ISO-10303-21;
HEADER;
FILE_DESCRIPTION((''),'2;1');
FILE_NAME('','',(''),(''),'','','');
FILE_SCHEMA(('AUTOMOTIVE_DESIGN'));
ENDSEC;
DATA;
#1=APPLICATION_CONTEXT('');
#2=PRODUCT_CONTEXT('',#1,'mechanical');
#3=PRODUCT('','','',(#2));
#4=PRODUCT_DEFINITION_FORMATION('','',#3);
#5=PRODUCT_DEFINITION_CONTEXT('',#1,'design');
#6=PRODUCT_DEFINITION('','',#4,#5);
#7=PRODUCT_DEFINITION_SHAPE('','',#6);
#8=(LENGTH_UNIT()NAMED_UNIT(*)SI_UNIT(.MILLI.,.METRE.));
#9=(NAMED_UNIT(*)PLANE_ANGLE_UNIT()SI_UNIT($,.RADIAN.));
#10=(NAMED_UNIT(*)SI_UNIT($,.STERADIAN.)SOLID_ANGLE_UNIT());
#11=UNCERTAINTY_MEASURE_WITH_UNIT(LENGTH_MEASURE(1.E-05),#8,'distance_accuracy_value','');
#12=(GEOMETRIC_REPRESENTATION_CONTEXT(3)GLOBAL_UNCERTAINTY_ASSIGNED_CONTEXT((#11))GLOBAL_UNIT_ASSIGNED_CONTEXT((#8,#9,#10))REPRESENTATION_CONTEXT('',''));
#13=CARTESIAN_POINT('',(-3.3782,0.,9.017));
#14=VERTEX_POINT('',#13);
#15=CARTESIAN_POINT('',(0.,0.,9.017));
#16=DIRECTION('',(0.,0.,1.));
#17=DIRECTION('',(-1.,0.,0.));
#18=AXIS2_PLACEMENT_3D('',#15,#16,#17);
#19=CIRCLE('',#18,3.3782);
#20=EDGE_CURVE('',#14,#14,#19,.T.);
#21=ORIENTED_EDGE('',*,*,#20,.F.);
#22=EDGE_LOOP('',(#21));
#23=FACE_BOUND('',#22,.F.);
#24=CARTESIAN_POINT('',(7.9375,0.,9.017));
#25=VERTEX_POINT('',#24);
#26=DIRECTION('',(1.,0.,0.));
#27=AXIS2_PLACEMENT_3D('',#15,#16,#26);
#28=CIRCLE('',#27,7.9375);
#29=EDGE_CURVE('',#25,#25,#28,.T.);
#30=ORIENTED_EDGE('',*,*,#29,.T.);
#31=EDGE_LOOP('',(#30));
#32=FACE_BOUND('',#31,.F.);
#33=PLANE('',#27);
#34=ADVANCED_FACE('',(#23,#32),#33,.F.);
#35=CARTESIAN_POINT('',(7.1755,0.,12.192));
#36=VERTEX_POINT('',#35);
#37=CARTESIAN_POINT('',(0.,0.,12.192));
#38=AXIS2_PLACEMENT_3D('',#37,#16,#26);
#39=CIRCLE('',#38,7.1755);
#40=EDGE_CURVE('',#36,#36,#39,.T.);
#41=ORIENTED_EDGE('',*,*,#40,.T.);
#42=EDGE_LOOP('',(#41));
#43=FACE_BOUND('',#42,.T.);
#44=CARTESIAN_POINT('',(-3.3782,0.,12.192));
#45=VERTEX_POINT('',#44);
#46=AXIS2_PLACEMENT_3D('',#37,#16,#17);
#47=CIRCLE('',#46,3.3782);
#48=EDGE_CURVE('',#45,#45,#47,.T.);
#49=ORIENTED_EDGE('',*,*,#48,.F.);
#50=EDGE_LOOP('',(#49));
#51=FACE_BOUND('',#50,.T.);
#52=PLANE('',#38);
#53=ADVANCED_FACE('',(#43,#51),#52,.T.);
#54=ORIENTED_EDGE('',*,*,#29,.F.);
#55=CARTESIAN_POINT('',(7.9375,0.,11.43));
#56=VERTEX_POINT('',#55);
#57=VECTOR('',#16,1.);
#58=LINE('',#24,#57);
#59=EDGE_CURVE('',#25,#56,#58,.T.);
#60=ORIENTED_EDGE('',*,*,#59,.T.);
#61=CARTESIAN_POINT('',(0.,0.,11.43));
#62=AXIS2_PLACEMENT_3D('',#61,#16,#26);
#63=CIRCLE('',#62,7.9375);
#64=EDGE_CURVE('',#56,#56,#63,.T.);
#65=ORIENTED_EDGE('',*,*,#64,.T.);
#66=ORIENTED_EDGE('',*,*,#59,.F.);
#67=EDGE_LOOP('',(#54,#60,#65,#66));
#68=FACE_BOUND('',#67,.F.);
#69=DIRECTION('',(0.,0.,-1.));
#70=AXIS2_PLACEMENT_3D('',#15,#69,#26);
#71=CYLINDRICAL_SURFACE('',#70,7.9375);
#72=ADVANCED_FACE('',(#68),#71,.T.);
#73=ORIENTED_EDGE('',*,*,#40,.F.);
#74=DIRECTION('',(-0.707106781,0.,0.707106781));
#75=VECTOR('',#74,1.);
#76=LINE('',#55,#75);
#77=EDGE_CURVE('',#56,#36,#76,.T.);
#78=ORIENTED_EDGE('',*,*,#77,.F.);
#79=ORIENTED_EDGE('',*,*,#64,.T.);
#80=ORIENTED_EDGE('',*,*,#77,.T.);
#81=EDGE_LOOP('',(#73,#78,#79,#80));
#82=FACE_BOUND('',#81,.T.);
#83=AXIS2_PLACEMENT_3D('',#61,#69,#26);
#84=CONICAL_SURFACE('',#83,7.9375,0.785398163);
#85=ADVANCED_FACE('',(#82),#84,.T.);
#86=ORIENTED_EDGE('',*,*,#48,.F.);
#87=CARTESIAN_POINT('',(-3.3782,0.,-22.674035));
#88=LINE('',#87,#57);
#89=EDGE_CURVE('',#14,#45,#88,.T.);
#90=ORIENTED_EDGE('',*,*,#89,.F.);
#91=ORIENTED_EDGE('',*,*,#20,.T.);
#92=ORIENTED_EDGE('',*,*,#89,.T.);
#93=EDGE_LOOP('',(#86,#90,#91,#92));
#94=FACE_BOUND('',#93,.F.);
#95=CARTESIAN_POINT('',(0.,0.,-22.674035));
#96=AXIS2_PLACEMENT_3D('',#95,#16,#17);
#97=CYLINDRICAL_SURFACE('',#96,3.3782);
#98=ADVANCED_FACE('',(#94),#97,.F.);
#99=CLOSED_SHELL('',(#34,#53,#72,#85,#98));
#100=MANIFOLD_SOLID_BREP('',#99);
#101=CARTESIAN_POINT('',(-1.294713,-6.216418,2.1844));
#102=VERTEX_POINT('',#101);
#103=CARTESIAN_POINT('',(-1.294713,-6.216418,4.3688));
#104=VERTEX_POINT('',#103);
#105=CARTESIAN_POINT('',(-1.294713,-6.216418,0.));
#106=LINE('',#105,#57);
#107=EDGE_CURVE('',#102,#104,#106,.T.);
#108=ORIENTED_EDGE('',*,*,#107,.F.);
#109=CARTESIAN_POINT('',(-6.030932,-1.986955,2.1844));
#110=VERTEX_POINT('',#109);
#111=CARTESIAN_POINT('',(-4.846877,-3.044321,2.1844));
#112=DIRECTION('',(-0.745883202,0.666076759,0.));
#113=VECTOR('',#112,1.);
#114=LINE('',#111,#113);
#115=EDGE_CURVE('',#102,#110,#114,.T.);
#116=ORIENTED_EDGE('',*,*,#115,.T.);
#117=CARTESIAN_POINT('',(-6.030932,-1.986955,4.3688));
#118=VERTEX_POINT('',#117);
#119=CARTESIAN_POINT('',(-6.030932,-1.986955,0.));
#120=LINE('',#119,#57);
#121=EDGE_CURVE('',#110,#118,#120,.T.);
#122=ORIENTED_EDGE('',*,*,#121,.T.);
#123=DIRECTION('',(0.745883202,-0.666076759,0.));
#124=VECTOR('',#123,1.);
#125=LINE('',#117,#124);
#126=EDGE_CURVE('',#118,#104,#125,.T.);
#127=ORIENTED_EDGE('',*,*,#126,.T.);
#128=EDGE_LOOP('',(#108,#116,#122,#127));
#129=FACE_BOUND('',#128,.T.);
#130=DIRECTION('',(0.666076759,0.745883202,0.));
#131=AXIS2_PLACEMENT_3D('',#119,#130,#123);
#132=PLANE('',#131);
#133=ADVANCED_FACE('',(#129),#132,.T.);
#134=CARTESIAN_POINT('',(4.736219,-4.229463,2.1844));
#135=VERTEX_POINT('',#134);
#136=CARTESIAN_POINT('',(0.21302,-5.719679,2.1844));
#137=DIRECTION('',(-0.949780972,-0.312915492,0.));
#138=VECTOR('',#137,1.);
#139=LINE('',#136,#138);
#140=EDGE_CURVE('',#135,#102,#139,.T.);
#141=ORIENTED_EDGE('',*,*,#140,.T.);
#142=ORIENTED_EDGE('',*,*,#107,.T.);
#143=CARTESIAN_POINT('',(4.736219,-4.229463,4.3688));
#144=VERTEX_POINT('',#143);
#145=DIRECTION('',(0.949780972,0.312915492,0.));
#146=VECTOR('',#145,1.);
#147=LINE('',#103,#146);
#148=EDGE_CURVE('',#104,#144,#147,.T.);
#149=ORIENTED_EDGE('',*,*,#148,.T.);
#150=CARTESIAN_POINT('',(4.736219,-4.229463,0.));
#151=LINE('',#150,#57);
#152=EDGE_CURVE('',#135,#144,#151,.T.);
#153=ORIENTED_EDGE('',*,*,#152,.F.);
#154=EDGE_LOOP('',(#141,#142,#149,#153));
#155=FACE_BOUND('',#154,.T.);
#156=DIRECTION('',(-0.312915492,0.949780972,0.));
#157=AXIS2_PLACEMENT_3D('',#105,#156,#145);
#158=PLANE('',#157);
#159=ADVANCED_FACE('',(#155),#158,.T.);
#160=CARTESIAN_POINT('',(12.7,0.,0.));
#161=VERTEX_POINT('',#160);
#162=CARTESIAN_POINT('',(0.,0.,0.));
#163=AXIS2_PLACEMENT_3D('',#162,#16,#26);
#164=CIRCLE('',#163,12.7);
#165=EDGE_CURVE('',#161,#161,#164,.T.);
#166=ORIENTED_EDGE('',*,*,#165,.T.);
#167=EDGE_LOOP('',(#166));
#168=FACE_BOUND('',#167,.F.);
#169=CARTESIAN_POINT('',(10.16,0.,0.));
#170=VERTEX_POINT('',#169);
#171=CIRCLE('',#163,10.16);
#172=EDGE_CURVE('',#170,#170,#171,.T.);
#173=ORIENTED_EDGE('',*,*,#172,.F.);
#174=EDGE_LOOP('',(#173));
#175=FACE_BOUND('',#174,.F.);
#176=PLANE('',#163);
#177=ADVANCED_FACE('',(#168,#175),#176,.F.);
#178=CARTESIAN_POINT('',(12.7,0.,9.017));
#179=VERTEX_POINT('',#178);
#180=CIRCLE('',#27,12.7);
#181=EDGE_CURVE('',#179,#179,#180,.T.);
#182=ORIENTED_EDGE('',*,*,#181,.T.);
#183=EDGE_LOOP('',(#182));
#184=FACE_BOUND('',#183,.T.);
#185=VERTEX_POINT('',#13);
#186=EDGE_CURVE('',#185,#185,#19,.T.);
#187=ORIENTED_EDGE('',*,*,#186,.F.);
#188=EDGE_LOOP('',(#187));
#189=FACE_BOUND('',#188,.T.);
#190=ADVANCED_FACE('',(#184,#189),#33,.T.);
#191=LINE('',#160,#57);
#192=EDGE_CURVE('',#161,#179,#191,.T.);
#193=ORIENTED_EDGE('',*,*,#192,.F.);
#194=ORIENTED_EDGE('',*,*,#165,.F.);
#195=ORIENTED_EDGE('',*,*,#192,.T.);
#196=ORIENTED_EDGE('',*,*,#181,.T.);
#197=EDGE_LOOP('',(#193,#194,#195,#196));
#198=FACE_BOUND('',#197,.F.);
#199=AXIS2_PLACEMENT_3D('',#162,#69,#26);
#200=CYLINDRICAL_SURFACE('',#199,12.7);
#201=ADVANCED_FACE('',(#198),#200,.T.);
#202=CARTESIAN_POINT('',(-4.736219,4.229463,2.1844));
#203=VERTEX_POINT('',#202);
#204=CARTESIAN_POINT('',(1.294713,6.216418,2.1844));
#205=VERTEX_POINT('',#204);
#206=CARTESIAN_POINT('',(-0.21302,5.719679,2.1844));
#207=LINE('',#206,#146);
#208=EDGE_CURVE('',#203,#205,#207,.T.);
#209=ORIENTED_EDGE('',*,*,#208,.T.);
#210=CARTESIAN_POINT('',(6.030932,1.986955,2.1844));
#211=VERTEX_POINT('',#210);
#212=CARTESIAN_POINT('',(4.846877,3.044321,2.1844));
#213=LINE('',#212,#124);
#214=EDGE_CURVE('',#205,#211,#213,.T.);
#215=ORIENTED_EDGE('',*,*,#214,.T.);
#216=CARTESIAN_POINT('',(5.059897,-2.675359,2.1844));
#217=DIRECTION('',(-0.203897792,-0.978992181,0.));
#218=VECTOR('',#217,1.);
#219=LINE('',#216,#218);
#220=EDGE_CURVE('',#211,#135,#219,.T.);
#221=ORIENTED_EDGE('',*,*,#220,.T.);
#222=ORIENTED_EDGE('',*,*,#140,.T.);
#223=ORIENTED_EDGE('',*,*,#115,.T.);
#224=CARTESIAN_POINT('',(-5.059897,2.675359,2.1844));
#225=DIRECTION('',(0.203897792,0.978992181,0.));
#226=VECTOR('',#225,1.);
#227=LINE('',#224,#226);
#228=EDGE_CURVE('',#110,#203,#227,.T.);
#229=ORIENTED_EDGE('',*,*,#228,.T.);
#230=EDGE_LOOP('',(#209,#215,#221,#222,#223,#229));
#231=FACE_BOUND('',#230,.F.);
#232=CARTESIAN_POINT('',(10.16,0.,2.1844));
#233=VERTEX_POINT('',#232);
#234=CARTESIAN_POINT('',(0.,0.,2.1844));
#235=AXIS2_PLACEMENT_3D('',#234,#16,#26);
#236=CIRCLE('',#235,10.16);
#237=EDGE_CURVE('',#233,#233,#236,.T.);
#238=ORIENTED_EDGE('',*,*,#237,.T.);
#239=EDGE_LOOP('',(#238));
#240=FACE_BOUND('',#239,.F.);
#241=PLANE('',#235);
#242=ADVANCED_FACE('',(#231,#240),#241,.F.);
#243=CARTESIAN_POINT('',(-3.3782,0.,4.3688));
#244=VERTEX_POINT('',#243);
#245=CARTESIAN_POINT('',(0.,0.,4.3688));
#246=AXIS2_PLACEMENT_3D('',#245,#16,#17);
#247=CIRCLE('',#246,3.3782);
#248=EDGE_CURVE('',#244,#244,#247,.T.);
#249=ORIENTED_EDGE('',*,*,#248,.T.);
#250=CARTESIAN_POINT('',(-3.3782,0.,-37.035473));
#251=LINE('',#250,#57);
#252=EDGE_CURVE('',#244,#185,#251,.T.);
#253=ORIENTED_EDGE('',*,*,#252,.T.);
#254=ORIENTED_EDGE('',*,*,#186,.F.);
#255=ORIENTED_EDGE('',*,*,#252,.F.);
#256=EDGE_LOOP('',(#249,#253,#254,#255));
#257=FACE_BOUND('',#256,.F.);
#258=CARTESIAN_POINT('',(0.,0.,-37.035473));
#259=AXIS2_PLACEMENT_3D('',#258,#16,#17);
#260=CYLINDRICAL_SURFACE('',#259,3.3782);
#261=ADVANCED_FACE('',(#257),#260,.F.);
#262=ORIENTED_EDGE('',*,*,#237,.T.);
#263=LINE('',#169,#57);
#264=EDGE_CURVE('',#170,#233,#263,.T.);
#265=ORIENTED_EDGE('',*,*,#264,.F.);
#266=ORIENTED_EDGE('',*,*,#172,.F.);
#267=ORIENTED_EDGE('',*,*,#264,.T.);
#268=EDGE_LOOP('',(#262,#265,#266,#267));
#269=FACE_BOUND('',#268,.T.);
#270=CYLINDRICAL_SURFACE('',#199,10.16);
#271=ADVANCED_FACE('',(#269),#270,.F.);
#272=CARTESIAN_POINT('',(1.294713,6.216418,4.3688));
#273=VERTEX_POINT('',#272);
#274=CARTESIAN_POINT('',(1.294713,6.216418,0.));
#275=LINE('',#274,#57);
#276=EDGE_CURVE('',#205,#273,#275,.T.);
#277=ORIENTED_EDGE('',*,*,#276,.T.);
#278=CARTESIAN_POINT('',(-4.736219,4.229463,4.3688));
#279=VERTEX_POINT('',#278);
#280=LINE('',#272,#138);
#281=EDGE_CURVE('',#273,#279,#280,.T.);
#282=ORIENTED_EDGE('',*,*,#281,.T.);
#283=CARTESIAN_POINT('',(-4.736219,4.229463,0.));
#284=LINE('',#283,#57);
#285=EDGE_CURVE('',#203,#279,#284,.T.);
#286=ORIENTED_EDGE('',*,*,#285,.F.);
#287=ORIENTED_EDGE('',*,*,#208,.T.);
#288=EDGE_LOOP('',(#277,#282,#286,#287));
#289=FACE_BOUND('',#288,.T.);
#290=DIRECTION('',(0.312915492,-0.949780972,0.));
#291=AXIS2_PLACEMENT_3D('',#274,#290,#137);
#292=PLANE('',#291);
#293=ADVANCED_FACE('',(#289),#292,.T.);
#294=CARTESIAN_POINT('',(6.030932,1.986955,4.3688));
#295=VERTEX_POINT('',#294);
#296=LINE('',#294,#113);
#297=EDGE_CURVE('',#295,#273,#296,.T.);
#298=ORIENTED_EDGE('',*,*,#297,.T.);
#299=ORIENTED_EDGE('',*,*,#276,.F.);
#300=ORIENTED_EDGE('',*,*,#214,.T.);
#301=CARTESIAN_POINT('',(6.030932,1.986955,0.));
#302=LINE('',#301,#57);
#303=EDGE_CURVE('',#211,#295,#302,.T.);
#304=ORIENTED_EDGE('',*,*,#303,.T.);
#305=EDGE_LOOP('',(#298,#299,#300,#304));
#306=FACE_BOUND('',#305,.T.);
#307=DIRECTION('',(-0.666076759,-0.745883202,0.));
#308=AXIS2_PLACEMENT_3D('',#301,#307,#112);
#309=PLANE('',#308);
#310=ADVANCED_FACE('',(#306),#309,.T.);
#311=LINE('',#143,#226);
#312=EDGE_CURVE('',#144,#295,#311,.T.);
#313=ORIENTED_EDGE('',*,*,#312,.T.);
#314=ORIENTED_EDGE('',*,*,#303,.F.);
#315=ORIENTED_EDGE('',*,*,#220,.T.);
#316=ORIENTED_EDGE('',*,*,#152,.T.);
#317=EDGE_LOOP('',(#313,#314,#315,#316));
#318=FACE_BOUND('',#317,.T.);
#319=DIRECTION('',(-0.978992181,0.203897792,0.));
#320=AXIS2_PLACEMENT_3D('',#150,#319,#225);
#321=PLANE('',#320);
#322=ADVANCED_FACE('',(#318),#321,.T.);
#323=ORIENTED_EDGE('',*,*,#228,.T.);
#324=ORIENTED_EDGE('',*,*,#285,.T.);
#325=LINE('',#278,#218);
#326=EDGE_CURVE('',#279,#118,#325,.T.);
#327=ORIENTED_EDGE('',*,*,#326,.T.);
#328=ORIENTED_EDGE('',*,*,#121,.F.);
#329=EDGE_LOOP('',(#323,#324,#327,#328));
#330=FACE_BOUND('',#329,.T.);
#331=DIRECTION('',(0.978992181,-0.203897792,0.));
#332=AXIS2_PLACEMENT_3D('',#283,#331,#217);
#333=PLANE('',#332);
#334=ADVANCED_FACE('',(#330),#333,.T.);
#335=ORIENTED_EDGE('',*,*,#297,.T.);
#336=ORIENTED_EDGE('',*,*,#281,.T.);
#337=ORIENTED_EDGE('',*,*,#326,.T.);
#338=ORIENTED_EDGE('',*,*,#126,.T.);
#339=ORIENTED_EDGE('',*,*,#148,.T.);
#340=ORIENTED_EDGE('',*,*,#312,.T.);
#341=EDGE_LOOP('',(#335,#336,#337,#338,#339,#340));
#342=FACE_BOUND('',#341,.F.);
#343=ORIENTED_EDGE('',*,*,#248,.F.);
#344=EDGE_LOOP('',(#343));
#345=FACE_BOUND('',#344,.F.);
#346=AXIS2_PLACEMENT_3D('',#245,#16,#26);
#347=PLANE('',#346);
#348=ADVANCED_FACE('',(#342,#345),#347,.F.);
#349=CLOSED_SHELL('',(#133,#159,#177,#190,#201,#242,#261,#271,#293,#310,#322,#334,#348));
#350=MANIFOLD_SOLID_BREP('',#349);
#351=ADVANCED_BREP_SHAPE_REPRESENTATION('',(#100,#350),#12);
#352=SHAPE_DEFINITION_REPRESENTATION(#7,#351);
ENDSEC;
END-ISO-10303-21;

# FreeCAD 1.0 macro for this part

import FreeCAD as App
import Part
import Sketcher

V = App.Vector
Q = App.Units.Quantity


def edges_at(feature, points):
    """Names of the edges that pass closest to the given points."""
    edges = feature.Shape.Edges
    near = lambda p: min(range(len(edges)), key=lambda i: edges[i].distToShape(Part.Vertex(*p))[0])
    return sorted({f"Edge{near(p) + 1}" for p in points})

doc = App.newDocument("Part")
params = doc.addObject("Spreadsheet::Sheet", "Params")
for row, (alias, value) in enumerate([
    ("sketch1_diameter", "1 in"),
    ("pad1_length", "0.355 in"),
    ("sketch2_diameter", "0.8 in"),
    ("pocket1_length", "0.086 in"),
    ("pocket2_length", "0.172 in"),
    ("sketch4_diameter", "0.266 in"),
    ("hole_diameter", "0.266 in"),
    ("sketch5_diameter", "0.625 in"),
    ("pad2_length", "0.125 in"),
    ("chamfer_size", "0.03 in"),
    ("sketch6_diameter", "0.266 in"),
    ("hole2_diameter", "0.266 in"),
], start=1):
    params.set(f"A{row}", alias)
    params.set(f"B{row}", "=" + value)
    params.setAlias(f"B{row}", alias)

body = doc.addObject("PartDesign::Body", "Body")

sketch1 = body.newObject("Sketcher::SketchObject", "Sketch")
sketch1.AttachmentSupport = (doc.getObject("XY_Plane"), [""])
sketch1.MapMode = "FlatFace"
sketch1.addGeometry(Part.Circle(V(0, 0, 0), V(0, 0, 1), 12.7), False)
sketch1.addConstraint([
    Sketcher.Constraint("Coincident", 0, 3, -1, 1),
    Sketcher.Constraint("Diameter", 0, Q("1 in")),
])
sketch1.setExpression("Constraints[1]", "Params.sketch1_diameter")
pad1 = body.newObject("PartDesign::Pad", "Pad")
pad1.Profile = sketch1
pad1.setExpression("Length", "Params.pad1_length")

sketch2 = body.newObject("Sketcher::SketchObject", "Sketch001")
sketch2.AttachmentSupport = (doc.getObject("XY_Plane"), [""])
sketch2.MapMode = "FlatFace"
sketch2.addGeometry(Part.Circle(V(0, 0, 0), V(0, 0, 1), 10.16), False)
sketch2.addConstraint([
    Sketcher.Constraint("Coincident", 0, 3, -1, 1),
    Sketcher.Constraint("Diameter", 0, Q("0.8 in")),
])
sketch2.setExpression("Constraints[1]", "Params.sketch2_diameter")
pocket1 = body.newObject("PartDesign::Pocket", "Pocket")
pocket1.Profile = sketch2
pocket1.setExpression("Length", "Params.pocket1_length")
pocket1.Reversed = True

sketch3 = body.newObject("Sketcher::SketchObject", "Sketch002")
sketch3.AttachmentSupport = (doc.getObject("XY_Plane"), [""])
sketch3.MapMode = "FlatFace"
sketch3.addGeometry([
    Part.LineSegment(V(6.030932, 1.986955, 0), V(1.294713, 6.216418, 0)),
    Part.LineSegment(V(1.294713, 6.216418, 0), V(-4.736219, 4.229463, 0)),
    Part.LineSegment(V(-4.736219, 4.229463, 0), V(-6.030932, -1.986955, 0)),
    Part.LineSegment(V(-6.030932, -1.986955, 0), V(-1.294713, -6.216418, 0)),
    Part.LineSegment(V(-1.294713, -6.216418, 0), V(4.736219, -4.229463, 0)),
    Part.LineSegment(V(4.736219, -4.229463, 0), V(6.030932, 1.986955, 0)),
], False)
sketch3.addConstraint([
    Sketcher.Constraint("Coincident", 0, 2, 1, 1),
    Sketcher.Constraint("Coincident", 1, 2, 2, 1),
    Sketcher.Constraint("Coincident", 2, 2, 3, 1),
    Sketcher.Constraint("Coincident", 3, 2, 4, 1),
    Sketcher.Constraint("Coincident", 4, 2, 5, 1),
    Sketcher.Constraint("Coincident", 5, 2, 0, 1),
    Sketcher.Constraint("Symmetric", 0, 2, 3, 2, -1, 1),
    Sketcher.Constraint("Symmetric", 1, 2, 4, 2, -1, 1),
    Sketcher.Constraint("Symmetric", 2, 2, 5, 2, -1, 1),
    Sketcher.Constraint("Equal", 0, 1),
    Sketcher.Constraint("Equal", 1, 2),
    Sketcher.Constraint("DistanceX", 1, 2, -1, 1, Q("4.736219 mm")),
    Sketcher.Constraint("DistanceX", 2, 2, 3, 2, Q("4.736219 mm")),
    Sketcher.Constraint("DistanceY", 3, 2, 1, 2, Q("10.445881 mm")),
    Sketcher.Constraint("DistanceX", 2, 2, 4, 2, Q("10.767151 mm")),
])
pocket2 = body.newObject("PartDesign::Pocket", "Pocket001")
pocket2.Profile = sketch3
pocket2.setExpression("Length", "Params.pocket2_length")
pocket2.Reversed = True

sketch4 = body.newObject("Sketcher::SketchObject", "Sketch003")
sketch4.AttachmentSupport = (doc.getObject("XY_Plane"), [""])
sketch4.MapMode = "FlatFace"
sketch4.addGeometry(Part.Circle(V(0, 0, 0), V(0, 0, 1), 3.3782), False)
sketch4.addConstraint([
    Sketcher.Constraint("Coincident", 0, 3, -1, 1),
    Sketcher.Constraint("Diameter", 0, Q("0.266 in")),
])
sketch4.setExpression("Constraints[1]", "Params.sketch4_diameter")
doc.recompute()
hole = body.newObject("PartDesign::Hole", "Hole")
hole.Profile = sketch4
hole.ThreadType = "None"
hole.setExpression("Diameter", "Params.hole_diameter")
hole.DepthType = "ThroughAll"
hole.Reversed = True
body2 = doc.addObject("PartDesign::Body", "Body001")

sketch5 = body2.newObject("Sketcher::SketchObject", "Sketch004")
sketch5.AttachmentSupport = (doc.getObject("XY_Plane001"), [""])
sketch5.MapMode = "FlatFace"
sketch5.AttachmentOffset = App.Placement(V(0, 0, 0.355 * 25.4), App.Rotation())
sketch5.addGeometry(Part.Circle(V(0, 0, 0), V(0, 0, 1), 7.9375), False)
sketch5.addConstraint([
    Sketcher.Constraint("Coincident", 0, 3, -1, 1),
    Sketcher.Constraint("Diameter", 0, Q("0.625 in")),
])
sketch5.setExpression("Constraints[1]", "Params.sketch5_diameter")
pad2 = body2.newObject("PartDesign::Pad", "Pad001")
pad2.Profile = sketch5
pad2.setExpression("Length", "Params.pad2_length")
doc.recompute()

chamfer = body2.newObject("PartDesign::Chamfer", "Chamfer")
chamfer.Base = (pad2, edges_at(pad2, [(-7.938, 0, 12.192)]))
chamfer.setExpression("Size", "Params.chamfer_size")

sketch6 = body2.newObject("Sketcher::SketchObject", "Sketch005")
sketch6.AttachmentSupport = (doc.getObject("XY_Plane001"), [""])
sketch6.MapMode = "FlatFace"
sketch6.addGeometry(Part.Circle(V(0, 0, 0), V(0, 0, 1), 3.3782), False)
sketch6.addConstraint([
    Sketcher.Constraint("Coincident", 0, 3, -1, 1),
    Sketcher.Constraint("Diameter", 0, Q("0.266 in")),
])
sketch6.setExpression("Constraints[1]", "Params.sketch6_diameter")
doc.recompute()
hole2 = body2.newObject("PartDesign::Hole", "Hole001")
hole2.Profile = sketch6
hole2.ThreadType = "None"
hole2.setExpression("Diameter", "Params.hole2_diameter")
hole2.DepthType = "ThroughAll"
hole2.Reversed = True

doc.recompute()
